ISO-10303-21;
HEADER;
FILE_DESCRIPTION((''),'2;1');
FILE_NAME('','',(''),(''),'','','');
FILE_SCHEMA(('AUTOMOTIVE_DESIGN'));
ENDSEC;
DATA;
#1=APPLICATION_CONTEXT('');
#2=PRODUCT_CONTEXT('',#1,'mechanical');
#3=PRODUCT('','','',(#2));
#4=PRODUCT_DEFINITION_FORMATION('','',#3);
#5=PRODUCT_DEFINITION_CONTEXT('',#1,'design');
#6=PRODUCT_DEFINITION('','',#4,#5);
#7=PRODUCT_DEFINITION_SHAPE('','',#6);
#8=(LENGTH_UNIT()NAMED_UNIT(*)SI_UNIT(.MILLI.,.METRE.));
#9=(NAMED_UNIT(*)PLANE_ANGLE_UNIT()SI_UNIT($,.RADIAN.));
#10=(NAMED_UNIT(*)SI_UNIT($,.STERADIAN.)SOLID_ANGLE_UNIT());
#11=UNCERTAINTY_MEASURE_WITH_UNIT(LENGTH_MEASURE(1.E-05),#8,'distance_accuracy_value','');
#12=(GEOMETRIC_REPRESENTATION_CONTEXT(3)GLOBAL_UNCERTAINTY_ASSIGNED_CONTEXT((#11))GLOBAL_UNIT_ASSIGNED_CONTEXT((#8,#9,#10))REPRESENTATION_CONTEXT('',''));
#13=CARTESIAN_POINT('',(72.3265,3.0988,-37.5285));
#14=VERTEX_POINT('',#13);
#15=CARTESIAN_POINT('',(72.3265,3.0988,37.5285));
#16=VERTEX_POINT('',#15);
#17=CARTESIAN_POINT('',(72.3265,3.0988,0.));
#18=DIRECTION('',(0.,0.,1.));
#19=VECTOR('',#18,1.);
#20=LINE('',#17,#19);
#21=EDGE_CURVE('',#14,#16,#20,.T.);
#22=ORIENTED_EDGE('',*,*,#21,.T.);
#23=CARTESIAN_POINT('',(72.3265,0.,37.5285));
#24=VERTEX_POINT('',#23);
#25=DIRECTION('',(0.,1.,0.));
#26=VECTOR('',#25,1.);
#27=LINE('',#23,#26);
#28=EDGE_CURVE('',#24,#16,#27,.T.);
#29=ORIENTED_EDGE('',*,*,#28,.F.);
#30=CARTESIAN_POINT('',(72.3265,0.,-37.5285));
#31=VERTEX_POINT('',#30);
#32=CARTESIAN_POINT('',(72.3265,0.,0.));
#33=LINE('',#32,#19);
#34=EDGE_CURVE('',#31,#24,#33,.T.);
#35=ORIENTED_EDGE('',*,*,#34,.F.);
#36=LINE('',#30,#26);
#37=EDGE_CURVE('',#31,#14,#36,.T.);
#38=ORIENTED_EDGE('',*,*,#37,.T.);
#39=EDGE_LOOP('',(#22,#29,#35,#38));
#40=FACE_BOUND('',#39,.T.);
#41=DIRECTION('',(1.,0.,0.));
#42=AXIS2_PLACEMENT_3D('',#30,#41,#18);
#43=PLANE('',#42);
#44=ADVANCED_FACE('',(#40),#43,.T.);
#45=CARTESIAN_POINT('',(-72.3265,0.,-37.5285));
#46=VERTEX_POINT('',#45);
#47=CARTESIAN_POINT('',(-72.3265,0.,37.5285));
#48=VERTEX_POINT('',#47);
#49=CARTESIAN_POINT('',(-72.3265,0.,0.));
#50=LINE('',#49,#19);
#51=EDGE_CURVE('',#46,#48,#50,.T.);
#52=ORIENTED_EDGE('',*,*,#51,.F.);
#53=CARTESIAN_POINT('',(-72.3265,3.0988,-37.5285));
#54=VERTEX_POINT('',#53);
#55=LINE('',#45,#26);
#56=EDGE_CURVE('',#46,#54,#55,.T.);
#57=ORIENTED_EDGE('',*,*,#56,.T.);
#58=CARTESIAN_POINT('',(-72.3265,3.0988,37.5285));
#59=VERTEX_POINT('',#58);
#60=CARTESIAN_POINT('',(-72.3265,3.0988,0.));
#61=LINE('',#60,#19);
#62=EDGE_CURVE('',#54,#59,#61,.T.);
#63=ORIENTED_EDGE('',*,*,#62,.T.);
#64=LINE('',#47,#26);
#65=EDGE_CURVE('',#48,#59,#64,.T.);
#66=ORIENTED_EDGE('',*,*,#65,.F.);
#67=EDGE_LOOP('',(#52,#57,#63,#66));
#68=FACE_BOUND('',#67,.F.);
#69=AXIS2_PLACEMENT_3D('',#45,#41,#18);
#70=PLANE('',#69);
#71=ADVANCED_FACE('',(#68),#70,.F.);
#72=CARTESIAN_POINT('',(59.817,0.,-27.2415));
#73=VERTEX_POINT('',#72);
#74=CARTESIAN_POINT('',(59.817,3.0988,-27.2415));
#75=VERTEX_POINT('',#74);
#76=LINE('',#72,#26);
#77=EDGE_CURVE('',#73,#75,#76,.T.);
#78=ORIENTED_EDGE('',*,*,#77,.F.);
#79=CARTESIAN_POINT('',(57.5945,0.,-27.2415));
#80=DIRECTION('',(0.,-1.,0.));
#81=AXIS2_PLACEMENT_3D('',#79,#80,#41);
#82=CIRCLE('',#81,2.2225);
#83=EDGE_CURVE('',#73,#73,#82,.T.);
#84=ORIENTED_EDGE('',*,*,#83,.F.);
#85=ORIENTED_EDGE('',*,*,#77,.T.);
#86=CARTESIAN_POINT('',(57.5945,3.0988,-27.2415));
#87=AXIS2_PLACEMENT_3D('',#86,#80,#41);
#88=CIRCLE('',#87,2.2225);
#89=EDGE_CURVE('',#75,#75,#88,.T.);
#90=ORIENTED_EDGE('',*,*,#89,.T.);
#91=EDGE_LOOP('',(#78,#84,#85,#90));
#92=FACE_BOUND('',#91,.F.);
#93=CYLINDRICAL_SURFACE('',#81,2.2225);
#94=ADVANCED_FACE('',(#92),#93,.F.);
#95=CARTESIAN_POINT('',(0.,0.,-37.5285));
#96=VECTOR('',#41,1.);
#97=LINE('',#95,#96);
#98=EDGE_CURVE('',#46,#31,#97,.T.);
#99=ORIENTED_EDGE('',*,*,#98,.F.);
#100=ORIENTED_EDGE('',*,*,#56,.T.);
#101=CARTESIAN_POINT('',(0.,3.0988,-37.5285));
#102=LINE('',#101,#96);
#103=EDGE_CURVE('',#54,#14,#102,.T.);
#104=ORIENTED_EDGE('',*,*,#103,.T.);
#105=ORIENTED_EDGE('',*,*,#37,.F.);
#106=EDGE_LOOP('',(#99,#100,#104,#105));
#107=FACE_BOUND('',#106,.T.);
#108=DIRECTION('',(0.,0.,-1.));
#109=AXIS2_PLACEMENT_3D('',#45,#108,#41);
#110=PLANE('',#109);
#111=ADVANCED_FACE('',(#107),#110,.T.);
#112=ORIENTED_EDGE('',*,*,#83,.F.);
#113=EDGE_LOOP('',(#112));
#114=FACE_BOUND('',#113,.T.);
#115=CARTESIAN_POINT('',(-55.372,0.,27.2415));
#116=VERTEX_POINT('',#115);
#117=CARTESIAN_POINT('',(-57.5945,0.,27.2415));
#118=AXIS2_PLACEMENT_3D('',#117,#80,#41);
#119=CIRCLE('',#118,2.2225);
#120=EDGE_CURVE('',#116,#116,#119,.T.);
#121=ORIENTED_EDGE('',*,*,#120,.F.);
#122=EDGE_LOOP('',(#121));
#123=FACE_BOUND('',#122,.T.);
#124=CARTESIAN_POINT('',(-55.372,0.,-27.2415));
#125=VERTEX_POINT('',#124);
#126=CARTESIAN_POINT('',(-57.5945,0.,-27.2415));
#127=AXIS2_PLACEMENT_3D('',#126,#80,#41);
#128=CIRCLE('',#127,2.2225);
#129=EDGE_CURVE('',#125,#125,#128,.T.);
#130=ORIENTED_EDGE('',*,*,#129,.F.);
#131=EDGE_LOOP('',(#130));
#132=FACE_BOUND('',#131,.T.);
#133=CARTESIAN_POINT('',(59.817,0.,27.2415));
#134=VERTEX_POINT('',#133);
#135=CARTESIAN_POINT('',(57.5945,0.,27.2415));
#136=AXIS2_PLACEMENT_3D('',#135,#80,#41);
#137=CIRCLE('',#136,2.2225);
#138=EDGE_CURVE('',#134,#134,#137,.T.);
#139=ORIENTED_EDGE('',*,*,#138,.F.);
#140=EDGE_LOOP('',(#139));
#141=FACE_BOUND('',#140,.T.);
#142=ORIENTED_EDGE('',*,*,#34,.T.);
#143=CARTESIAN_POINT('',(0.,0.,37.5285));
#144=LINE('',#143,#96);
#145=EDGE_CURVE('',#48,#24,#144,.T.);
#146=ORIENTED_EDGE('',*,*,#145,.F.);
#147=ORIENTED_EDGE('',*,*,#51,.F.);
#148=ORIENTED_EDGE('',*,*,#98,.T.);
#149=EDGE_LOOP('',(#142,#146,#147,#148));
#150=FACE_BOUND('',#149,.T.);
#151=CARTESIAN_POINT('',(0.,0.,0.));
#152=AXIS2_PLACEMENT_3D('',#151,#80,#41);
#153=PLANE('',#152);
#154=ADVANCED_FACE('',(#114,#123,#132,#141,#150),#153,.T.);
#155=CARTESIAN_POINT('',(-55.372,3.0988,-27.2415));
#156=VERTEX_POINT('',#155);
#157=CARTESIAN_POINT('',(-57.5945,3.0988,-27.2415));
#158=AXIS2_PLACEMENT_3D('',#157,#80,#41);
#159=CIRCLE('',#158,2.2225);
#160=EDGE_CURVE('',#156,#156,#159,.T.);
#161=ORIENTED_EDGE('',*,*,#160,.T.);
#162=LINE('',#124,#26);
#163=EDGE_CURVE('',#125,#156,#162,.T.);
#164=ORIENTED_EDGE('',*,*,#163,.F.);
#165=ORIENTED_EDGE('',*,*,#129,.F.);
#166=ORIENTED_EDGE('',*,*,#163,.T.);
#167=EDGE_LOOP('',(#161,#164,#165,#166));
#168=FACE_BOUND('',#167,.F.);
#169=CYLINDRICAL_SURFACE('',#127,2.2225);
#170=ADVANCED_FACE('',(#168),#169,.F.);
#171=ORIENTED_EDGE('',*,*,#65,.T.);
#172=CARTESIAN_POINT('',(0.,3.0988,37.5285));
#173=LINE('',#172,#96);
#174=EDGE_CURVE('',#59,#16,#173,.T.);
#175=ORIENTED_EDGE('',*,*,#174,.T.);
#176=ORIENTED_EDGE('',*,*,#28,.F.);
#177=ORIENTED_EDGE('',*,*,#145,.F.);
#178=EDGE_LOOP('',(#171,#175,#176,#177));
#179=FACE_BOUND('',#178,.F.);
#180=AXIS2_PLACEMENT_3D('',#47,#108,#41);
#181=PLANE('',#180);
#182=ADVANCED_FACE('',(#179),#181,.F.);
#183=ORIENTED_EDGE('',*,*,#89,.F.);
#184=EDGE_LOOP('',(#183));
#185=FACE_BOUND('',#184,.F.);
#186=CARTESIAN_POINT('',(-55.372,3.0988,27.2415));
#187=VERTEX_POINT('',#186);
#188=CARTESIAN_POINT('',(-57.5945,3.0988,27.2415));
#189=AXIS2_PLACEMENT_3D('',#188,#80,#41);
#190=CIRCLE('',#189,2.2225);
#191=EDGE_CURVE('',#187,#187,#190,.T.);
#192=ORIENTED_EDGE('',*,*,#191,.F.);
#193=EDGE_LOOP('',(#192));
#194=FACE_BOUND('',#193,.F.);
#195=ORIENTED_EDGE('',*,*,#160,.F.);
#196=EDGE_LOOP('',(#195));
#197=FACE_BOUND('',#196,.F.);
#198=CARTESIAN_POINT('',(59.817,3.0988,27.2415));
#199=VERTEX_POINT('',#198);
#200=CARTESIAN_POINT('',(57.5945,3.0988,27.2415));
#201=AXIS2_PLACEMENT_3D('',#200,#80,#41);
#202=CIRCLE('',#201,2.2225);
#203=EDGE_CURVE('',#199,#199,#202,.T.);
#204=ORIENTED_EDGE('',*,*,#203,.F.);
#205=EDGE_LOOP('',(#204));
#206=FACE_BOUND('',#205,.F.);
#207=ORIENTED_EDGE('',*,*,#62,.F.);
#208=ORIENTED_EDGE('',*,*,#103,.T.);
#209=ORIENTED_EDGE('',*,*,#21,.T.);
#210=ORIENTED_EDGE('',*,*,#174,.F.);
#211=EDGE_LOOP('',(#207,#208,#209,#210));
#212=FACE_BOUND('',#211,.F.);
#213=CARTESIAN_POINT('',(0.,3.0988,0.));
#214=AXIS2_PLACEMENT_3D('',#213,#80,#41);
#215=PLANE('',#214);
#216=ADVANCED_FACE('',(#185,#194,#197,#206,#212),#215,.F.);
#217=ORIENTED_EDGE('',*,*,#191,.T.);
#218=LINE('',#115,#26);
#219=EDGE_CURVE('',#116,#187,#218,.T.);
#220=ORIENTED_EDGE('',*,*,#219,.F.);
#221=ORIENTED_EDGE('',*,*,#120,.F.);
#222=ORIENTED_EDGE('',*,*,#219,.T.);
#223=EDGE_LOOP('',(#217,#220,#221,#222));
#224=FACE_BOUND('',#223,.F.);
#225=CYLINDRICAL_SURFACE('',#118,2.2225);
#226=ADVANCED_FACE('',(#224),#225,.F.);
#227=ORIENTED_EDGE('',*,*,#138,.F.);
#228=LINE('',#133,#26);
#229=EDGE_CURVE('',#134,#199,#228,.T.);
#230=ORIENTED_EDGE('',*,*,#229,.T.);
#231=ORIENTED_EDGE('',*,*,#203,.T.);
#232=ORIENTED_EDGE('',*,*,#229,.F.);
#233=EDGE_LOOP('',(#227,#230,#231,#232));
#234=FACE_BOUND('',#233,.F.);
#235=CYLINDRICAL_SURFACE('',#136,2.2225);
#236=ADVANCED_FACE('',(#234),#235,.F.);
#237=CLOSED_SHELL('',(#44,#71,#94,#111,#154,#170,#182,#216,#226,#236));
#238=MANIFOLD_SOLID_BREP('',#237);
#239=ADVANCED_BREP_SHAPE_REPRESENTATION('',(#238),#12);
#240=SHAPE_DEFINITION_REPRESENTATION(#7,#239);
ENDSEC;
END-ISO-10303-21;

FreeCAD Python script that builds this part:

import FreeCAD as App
import Part
import Sketcher

V = App.Vector
Q = App.Units.Quantity


def add_polygon(sketch, points):
    """Adds a closed chain of lines whose ends are joined by coincident constraints."""
    first, n = sketch.GeometryCount, len(points)
    for a, b in zip(points, points[1:] + points[:1]):
        sketch.addGeometry(Part.LineSegment(App.Vector(*a, 0), App.Vector(*b, 0)), False)
    for i in range(n):
        sketch.addConstraint(Sketcher.Constraint("Coincident", first + i, 2, first + (i + 1) % n, 1))

doc = App.newDocument("Part")
body = doc.addObject("PartDesign::Body", "Body")

# Sketch on XZ plane
sketch1 = doc.addObject("Sketcher::SketchObject", "Sketch")
body.addObject(sketch1)
sketch1.AttachmentSupport = (doc.XZ_Plane, [""])
sketch1.MapMode = "FlatFace"
add_polygon(sketch1, [(-72, 38), (-72, -38), (72, -38), (72, 38)])  # lines 0-3
sketch1.addConstraint([
    Sketcher.Constraint("Vertical", 0),
    Sketcher.Constraint("Horizontal", 1),
    Sketcher.Constraint("Vertical", 2),
    Sketcher.Constraint("Horizontal", 3),
    Sketcher.Constraint("Symmetric", 0, 2, 2, 2, -1, 1),
    Sketcher.Constraint("DistanceX", 1, 1, 1, 2, Q("5.695 in")),
    Sketcher.Constraint("DistanceY", 0, 2, 0, 1, Q("2.955 in")),
])
pad1 = doc.addObject("PartDesign::Pad", "Pad")
body.addObject(pad1)
pad1.Profile = sketch1
pad1.Length = Q("0.122 in")
pad1.Reversed = True

# Sketch on XZ plane
sketch2 = doc.addObject("Sketcher::SketchObject", "Sketch001")
body.addObject(sketch2)
sketch2.AttachmentSupport = (doc.XZ_Plane, [""])
sketch2.MapMode = "FlatFace"
sketch2.addGeometry([
    Part.Circle(V(-57.6, 27.2, 0), V(0, 0, 1), 2.2),
    Part.Circle(V(-57.6, -27.2, 0), V(0, 0, 1), 2.2),
    Part.Circle(V(57.6, -27.2, 0), V(0, 0, 1), 2.2),
    Part.Circle(V(57.6, 27.2, 0), V(0, 0, 1), 2.2),
], False)
sketch2.addConstraint([
    Sketcher.Constraint("Equal", 0, 1),
    Sketcher.Constraint("Equal", 1, 2),
    Sketcher.Constraint("Equal", 2, 3),
    Sketcher.Constraint("Symmetric", 0, 3, 2, 3, -1, 1),
    Sketcher.Constraint("Symmetric", 1, 3, 3, 3, -1, 1),
    Sketcher.Constraint("Symmetric", 1, 3, 2, 3, -2),
    Sketcher.Constraint("Diameter", 0, Q("0.175 in")),
    Sketcher.Constraint("DistanceY", 1, 3, 0, 3, Q("2.145 in")),
    Sketcher.Constraint("DistanceX", 1, 3, 2, 3, Q("4.535 in")),
])
pocket1 = doc.addObject("PartDesign::Pocket", "Pocket")
body.addObject(pocket1)
pocket1.Profile = sketch2
pocket1.Type = "ThroughAll"

doc.recompute()
